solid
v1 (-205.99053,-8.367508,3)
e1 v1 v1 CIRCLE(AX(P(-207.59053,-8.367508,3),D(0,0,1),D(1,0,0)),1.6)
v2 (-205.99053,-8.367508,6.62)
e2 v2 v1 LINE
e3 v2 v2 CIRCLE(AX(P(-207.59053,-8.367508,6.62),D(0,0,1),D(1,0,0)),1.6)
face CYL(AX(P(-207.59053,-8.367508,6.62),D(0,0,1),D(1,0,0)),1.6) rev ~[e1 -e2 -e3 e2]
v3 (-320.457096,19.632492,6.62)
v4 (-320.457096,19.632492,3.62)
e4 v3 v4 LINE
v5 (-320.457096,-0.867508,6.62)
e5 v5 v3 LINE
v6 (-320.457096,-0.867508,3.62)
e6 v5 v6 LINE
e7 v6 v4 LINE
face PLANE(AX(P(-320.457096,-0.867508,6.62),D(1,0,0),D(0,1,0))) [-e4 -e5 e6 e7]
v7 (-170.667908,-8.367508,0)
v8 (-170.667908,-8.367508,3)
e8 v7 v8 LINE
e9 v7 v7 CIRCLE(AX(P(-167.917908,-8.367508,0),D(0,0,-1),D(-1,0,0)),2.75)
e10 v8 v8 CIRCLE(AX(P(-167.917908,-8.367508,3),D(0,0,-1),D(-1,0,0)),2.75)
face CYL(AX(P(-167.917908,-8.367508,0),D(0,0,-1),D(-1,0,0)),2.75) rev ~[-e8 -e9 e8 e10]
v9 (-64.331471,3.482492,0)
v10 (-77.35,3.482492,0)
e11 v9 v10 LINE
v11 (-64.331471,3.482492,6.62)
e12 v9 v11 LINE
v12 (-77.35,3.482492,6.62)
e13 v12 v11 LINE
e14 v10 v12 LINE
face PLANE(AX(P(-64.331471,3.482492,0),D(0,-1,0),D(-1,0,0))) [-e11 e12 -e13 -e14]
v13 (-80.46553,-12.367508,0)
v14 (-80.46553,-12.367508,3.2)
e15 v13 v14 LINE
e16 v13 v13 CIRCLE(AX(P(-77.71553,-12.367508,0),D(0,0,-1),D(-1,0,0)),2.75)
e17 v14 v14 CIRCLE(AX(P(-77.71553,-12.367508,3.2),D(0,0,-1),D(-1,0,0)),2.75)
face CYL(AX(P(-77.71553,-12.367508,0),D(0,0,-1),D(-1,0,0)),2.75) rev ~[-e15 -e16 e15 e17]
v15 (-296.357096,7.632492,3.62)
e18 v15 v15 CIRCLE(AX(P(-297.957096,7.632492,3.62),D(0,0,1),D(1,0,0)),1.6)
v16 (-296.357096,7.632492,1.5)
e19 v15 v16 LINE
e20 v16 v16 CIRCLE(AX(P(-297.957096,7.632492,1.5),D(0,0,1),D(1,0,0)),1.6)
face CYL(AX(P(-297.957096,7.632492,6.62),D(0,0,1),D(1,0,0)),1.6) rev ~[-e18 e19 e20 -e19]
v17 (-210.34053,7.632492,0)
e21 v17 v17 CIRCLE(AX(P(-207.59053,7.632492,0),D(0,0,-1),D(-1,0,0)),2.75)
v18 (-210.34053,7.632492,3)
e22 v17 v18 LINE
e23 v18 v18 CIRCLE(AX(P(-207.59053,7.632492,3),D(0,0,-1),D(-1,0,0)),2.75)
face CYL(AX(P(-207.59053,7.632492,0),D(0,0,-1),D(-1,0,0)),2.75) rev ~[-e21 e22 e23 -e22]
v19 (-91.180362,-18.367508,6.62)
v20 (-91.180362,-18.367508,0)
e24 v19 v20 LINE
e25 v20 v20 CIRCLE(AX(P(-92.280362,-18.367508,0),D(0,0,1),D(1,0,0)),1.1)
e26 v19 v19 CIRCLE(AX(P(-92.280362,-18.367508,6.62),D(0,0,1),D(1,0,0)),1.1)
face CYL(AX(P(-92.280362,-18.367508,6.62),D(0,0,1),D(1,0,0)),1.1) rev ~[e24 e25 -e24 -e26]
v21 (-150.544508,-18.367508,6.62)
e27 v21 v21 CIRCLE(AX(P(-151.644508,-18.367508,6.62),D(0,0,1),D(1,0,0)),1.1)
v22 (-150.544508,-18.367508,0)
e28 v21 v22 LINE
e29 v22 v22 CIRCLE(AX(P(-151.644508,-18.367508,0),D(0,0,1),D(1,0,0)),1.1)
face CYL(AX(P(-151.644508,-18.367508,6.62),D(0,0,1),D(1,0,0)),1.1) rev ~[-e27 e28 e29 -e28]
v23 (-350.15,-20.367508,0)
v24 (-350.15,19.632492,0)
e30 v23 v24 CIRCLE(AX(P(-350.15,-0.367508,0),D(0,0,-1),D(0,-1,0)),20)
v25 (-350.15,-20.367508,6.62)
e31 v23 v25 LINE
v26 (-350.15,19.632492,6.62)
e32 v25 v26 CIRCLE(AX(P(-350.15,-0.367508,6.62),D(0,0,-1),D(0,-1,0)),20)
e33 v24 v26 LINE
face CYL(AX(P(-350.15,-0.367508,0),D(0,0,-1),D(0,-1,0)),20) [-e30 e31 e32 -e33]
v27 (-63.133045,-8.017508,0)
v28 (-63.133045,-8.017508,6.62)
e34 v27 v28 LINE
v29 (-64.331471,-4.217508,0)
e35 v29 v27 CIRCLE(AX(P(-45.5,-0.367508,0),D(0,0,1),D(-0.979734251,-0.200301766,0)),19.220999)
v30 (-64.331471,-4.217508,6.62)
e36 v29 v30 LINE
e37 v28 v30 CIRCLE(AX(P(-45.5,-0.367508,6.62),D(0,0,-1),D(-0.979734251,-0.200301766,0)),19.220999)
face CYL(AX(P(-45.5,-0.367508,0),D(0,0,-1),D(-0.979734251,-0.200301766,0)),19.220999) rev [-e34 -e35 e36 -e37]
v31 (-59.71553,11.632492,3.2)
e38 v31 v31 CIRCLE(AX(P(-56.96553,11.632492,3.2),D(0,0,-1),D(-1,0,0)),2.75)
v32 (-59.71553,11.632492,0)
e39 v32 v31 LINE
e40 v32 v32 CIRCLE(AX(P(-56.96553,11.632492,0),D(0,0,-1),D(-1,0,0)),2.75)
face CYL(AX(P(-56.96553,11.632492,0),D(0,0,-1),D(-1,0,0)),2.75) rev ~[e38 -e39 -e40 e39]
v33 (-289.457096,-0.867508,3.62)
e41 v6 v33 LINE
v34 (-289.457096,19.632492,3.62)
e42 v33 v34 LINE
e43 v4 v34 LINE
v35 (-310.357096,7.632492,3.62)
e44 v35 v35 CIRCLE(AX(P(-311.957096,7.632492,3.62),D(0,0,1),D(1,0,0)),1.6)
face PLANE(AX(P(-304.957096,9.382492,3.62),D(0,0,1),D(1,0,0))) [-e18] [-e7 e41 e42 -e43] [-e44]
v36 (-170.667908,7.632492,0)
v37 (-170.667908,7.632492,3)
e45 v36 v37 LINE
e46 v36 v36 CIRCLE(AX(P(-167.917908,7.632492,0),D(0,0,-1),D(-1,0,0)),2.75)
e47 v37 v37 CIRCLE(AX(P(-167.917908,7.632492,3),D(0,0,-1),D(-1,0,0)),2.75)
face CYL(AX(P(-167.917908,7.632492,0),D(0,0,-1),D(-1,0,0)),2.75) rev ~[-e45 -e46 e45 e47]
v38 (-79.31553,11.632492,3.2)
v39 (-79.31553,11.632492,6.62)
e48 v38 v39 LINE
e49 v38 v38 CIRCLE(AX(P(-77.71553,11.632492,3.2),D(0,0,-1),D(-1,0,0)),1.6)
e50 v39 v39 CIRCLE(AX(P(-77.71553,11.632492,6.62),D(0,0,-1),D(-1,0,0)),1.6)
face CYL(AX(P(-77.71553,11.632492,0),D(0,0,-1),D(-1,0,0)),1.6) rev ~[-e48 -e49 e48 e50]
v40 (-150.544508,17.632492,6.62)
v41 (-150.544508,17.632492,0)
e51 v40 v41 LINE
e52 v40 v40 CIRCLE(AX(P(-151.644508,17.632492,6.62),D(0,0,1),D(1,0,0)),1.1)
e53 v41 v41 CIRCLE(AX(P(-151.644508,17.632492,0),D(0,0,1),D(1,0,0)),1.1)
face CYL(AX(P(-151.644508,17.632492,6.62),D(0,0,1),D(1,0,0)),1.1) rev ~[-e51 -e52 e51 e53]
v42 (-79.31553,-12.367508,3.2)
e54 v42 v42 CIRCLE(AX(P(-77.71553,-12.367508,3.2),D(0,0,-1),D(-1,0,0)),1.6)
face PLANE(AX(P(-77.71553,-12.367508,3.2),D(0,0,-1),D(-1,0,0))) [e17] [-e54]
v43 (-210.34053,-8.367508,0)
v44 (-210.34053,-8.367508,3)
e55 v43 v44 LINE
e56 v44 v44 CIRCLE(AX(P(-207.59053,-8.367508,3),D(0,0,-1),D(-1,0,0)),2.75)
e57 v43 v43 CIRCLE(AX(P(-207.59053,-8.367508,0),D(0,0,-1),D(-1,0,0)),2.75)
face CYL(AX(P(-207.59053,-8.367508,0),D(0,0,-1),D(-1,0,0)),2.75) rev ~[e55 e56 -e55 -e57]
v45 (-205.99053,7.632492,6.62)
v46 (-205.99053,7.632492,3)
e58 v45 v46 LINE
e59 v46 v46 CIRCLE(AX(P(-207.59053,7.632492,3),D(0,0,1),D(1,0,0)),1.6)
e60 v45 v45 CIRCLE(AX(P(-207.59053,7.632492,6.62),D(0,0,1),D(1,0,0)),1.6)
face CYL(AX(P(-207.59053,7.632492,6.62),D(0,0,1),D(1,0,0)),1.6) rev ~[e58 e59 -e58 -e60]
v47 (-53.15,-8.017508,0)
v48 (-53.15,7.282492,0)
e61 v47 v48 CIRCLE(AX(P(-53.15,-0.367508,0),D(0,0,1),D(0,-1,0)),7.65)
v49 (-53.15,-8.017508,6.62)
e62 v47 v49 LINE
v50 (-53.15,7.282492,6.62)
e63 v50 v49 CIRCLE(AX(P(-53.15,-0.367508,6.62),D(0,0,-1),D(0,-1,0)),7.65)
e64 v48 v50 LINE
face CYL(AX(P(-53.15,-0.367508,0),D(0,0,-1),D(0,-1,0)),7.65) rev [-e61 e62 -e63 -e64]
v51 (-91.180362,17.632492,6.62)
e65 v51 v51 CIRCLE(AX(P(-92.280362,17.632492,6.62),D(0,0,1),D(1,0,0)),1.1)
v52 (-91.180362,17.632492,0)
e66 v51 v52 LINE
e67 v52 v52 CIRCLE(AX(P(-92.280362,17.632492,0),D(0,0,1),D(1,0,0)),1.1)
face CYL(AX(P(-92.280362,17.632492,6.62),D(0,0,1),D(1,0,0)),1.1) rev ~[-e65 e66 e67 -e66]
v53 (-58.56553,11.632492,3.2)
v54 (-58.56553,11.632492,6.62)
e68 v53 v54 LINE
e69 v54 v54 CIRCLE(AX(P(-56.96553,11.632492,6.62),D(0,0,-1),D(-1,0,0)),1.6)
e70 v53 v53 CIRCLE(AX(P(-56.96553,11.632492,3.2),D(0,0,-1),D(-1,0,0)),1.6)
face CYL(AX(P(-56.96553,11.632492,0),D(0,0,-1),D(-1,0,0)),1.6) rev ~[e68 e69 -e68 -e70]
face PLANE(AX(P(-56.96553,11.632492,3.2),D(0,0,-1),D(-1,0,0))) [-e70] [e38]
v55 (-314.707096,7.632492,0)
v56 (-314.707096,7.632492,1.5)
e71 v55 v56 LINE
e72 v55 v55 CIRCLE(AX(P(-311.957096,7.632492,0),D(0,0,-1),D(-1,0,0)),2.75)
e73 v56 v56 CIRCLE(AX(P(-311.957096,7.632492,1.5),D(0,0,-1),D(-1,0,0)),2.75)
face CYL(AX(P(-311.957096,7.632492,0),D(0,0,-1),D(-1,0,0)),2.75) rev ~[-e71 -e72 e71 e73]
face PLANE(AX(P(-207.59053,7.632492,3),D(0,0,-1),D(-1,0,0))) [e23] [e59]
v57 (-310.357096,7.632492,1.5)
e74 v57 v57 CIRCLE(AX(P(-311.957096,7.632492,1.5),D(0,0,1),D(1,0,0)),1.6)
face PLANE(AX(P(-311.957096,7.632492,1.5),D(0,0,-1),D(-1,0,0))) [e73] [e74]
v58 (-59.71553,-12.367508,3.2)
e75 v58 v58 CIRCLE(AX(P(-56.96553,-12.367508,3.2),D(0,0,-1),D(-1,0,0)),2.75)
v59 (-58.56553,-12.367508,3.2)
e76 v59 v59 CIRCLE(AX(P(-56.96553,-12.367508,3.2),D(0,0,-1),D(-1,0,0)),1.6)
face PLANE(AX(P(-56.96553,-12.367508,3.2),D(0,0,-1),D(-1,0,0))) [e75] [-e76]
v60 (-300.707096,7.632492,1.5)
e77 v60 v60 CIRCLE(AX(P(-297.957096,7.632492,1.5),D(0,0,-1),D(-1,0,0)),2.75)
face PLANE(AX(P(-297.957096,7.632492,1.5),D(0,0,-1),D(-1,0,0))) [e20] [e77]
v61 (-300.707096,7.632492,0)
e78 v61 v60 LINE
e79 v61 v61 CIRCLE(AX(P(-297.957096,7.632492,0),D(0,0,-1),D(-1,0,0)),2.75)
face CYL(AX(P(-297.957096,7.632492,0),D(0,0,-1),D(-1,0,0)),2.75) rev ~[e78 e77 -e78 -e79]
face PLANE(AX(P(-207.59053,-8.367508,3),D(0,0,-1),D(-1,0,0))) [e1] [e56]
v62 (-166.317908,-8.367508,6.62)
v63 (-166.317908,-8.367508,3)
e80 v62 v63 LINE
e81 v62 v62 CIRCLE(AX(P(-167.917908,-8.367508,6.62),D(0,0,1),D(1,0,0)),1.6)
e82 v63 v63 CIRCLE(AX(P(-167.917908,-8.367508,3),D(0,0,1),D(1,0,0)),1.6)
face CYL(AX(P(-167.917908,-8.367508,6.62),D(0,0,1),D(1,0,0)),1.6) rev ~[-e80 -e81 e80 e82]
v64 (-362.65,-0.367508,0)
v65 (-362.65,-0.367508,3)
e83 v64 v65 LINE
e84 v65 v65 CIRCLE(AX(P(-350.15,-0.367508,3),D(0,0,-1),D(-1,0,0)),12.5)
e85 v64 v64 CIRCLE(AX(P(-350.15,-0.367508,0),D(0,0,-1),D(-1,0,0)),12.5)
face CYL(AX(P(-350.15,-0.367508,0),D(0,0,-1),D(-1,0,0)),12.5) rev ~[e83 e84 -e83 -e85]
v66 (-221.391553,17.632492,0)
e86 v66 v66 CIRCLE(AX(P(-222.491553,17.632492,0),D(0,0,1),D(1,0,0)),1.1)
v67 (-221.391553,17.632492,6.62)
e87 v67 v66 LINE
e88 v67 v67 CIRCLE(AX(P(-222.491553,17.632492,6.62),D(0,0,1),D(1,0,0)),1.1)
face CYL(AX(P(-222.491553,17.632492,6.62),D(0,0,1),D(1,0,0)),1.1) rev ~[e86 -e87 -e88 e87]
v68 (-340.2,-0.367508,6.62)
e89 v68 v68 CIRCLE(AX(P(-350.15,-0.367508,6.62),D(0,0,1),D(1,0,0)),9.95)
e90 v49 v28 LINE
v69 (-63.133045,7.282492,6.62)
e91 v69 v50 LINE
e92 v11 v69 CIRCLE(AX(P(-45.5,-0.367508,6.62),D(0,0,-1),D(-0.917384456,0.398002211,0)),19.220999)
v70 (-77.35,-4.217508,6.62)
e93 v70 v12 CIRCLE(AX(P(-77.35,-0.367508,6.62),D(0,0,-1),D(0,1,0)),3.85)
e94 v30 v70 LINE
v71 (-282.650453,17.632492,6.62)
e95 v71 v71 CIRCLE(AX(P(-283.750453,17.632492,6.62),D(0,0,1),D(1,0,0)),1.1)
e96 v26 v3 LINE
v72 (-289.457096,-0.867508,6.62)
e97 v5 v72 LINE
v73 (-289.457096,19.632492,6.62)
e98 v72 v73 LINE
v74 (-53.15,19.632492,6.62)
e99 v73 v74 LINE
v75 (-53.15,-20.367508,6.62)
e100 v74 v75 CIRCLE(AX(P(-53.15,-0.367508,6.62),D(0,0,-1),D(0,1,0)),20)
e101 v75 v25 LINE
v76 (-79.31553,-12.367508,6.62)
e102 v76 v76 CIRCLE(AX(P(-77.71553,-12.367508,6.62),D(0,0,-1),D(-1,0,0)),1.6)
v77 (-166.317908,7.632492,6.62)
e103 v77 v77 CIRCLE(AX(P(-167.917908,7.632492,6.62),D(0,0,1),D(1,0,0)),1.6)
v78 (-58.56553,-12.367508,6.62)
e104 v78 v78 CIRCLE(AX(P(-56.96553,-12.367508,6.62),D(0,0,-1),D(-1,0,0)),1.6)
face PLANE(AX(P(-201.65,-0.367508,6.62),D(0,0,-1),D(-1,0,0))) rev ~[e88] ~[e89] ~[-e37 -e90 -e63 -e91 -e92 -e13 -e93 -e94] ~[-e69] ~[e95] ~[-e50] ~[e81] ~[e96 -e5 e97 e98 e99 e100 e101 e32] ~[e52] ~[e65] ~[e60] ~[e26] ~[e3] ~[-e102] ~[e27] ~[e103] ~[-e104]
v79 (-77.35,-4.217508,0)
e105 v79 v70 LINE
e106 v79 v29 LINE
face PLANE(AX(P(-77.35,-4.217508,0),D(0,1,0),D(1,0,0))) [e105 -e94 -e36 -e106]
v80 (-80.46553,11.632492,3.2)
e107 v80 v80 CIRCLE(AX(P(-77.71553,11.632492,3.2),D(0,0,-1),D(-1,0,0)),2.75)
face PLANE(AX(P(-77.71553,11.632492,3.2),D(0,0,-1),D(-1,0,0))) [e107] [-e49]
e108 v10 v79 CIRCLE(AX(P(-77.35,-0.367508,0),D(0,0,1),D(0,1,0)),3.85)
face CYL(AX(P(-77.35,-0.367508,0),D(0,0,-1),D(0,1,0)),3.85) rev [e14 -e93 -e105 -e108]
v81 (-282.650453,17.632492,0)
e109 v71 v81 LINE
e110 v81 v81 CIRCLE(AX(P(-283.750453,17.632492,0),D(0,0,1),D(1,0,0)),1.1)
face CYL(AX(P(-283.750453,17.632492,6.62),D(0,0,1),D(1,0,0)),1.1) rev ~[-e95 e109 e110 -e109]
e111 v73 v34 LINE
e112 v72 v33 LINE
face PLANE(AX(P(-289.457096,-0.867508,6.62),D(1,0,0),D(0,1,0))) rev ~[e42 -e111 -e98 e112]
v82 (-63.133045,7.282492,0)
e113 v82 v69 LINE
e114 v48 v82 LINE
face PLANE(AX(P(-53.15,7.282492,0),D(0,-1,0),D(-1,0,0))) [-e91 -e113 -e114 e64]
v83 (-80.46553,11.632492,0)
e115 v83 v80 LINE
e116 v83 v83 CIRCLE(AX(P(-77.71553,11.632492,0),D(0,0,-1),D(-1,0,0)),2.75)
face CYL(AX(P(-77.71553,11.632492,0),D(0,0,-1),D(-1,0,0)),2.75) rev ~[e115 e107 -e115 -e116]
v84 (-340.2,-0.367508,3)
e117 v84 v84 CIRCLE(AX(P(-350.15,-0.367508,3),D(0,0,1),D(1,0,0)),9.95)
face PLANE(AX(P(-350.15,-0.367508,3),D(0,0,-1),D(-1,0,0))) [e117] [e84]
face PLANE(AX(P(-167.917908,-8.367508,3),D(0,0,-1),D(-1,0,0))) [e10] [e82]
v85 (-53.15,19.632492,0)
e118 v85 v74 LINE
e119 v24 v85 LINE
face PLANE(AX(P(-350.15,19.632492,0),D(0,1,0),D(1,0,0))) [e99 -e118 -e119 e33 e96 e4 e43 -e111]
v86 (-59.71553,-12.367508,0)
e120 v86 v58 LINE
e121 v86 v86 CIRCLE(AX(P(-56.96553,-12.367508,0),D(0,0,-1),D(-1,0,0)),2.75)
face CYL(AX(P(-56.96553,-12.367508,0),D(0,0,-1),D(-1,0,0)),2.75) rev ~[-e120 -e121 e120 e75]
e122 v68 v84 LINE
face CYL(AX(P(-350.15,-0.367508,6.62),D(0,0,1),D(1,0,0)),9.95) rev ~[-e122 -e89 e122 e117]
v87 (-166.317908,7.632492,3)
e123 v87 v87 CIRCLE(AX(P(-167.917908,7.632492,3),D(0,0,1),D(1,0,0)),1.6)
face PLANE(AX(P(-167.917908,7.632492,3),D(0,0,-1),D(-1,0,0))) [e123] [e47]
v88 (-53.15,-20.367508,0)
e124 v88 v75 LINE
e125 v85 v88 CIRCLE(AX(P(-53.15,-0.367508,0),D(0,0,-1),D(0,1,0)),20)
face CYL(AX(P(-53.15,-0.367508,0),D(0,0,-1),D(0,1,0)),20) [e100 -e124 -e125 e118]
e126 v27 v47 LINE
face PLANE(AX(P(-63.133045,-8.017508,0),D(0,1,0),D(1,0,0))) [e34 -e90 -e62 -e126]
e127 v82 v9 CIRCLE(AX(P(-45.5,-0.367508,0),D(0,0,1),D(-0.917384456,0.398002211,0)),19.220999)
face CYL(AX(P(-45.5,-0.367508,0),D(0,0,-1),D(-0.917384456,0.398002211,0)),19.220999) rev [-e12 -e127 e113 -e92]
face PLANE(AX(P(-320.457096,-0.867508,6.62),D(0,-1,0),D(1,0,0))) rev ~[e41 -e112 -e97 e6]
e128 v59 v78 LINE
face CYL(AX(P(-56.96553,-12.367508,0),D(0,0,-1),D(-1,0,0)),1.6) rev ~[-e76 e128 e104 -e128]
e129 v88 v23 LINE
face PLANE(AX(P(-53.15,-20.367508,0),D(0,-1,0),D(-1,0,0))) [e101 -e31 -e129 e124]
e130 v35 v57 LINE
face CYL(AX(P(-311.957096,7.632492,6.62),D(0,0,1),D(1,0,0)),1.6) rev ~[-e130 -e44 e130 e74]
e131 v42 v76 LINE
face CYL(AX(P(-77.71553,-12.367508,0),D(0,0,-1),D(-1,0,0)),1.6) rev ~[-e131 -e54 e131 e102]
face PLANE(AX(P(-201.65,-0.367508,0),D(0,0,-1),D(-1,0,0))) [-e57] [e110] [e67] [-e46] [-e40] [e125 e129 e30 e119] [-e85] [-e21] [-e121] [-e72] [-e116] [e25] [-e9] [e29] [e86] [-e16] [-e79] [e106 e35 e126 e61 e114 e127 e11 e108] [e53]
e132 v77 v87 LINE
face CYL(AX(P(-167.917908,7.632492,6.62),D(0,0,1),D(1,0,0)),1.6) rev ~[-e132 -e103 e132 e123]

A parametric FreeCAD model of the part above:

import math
import FreeCAD as App
import Part
import Sketcher

V = App.Vector
Q = App.Units.Quantity


def add_polygon(sketch, points):
    """Adds a closed chain of lines whose ends are joined by coincident constraints."""
    first, n = sketch.GeometryCount, len(points)
    for a, b in zip(points, points[1:] + points[:1]):
        sketch.addGeometry(Part.LineSegment(App.Vector(*a, 0), App.Vector(*b, 0)), False)
    for i in range(n):
        sketch.addConstraint(Sketcher.Constraint("Coincident", first + i, 2, first + (i + 1) % n, 1))

doc = App.newDocument("Part")
body = doc.addObject("PartDesign::Body", "Body")

# Sketch on XY plane
sketch1 = body.newObject("Sketcher::SketchObject", "Sketch")
sketch1.AttachmentSupport = (doc.getObject("XY_Plane"), [""])
sketch1.MapMode = "FlatFace"
sketch1.addGeometry([
    Part.LineSegment(V(-350.15, -20.367508, 0), V(-53.15, -20.367508, 0)),
    Part.ArcOfCircle(Part.Circle(V(-53.15, -0.367508, 0), V(0, 0, 1), 20), math.radians(-90), math.radians(90)),
    Part.LineSegment(V(-53.15, 19.632492, 0), V(-350.15, 19.632492, 0)),
    Part.ArcOfCircle(Part.Circle(V(-350.15, -0.367508, 0), V(0, 0, 1), 20), math.radians(90), math.radians(270)),
], False)
sketch1.addConstraint([
    Sketcher.Constraint("Tangent", 0, 2, 1, 1),
    Sketcher.Constraint("Tangent", 1, 2, 2, 1),
    Sketcher.Constraint("Tangent", 2, 2, 3, 1),
    Sketcher.Constraint("Tangent", 3, 2, 0, 1),
    Sketcher.Constraint("Horizontal", 0),
    Sketcher.Constraint("Horizontal", 2),
    Sketcher.Constraint("Radius", 1, Q("20 mm")),
    Sketcher.Constraint("DistanceX", 0, 1, 0, 2, Q("297 mm")),
    Sketcher.Constraint("DistanceX", 1, 3, -1, 1, Q("53.15 mm")),
    Sketcher.Constraint("DistanceY", 1, 3, -1, 1, Q("0.367508 mm")),
])
pad1 = body.newObject("PartDesign::Pad", "Pad")
pad1.Profile = sketch1
pad1.Length = 6.62

# Sketch on XY plane
sketch2 = body.newObject("Sketcher::SketchObject", "Sketch001")
sketch2.AttachmentSupport = (doc.getObject("XY_Plane"), [""])
sketch2.MapMode = "FlatFace"
sketch2.addGeometry([
    Part.LineSegment(V(-63.133045, 7.282492, 0), V(-53.15, 7.282492, 0)),  # 0
    Part.ArcOfCircle(Part.Circle(V(-53.15, -0.367508, 0), V(0, 0, 1), 7.65), math.radians(-90), math.radians(90)),  # 1
    Part.LineSegment(V(-53.15, -8.017508, 0), V(-63.133045, -8.017508, 0)),  # 2
    Part.ArcOfCircle(Part.Circle(V(-45.5, -0.367508, 0), V(0, 0, 1), 19.220999), math.radians(-168.445394), math.radians(-156.546654)),  # 3
    Part.LineSegment(V(-64.331471, -4.217508, 0), V(-77.35, -4.217508, 0)),  # 4
    Part.ArcOfCircle(Part.Circle(V(-77.35, -0.367508, 0), V(0, 0, 1), 3.85), math.radians(90), math.radians(270)),  # 5
    Part.LineSegment(V(-77.35, 3.482492, 0), V(-64.331471, 3.482492, 0)),  # 6
    Part.ArcOfCircle(Part.Circle(V(-45.5, -0.367508, 0), V(0, 0, 1), 19.220999), math.radians(156.546654), math.radians(168.445394)),  # 7
], False)
sketch2.addConstraint([
    Sketcher.Constraint("Tangent", 0, 2, 1, 2),
    Sketcher.Constraint("Tangent", 1, 1, 2, 1),
    Sketcher.Constraint("Coincident", 2, 2, 3, 2),
    Sketcher.Constraint("Coincident", 3, 1, 4, 1),
    Sketcher.Constraint("Tangent", 4, 2, 5, 2),
    Sketcher.Constraint("Tangent", 5, 1, 6, 1),
    Sketcher.Constraint("Coincident", 6, 2, 7, 2),
    Sketcher.Constraint("Coincident", 7, 1, 0, 1),
    Sketcher.Constraint("Horizontal", 0),
    Sketcher.Constraint("Horizontal", 2),
    Sketcher.Constraint("Horizontal", 4),
    Sketcher.Constraint("Horizontal", 6),
    Sketcher.Constraint("Coincident", 7, 3, 3, 3),
    Sketcher.Constraint("Equal", 3, 7),
    Sketcher.Constraint("Horizontal", 1, 3, 3, 3),
    Sketcher.Constraint("Horizontal", 3, 3, 5, 3),
    Sketcher.Constraint("Radius", 1, Q("7.65 mm")),
    Sketcher.Constraint("Radius", 5, Q("3.85 mm")),
    Sketcher.Constraint("Radius", 3, Q("19.220999 mm")),
    Sketcher.Constraint("DistanceX", 3, 3, -1, 1, Q("45.5 mm")),
    Sketcher.Constraint("DistanceX", 5, 3, 1, 3, Q("24.2 mm")),
    Sketcher.Constraint("DistanceX", 1, 3, -1, 1, Q("53.15 mm")),
    Sketcher.Constraint("DistanceY", 1, 3, -1, 1, Q("0.367508 mm")),
])
pocket1 = body.newObject("PartDesign::Pocket", "Pocket")
pocket1.Profile = sketch2
pocket1.Type = "UpToFirst"
pocket1.Reversed = True

# Sketch on XY plane
sketch3 = body.newObject("Sketcher::SketchObject", "Sketch002")
sketch3.AttachmentSupport = (doc.getObject("XY_Plane"), [""])
sketch3.MapMode = "FlatFace"
sketch3.addGeometry(Part.Circle(V(-77.71553, -12.367508, 0), V(0, 0, 1), 1.6), False)
sketch3.addConstraint([
    Sketcher.Constraint("Diameter", 0, Q("3.2 mm")),
    Sketcher.Constraint("DistanceX", 0, 3, -1, 1, Q("77.71553 mm")),
    Sketcher.Constraint("DistanceY", 0, 3, -1, 1, Q("12.367508 mm")),
])
pocket2 = body.newObject("PartDesign::Pocket", "Pocket001")
pocket2.Profile = sketch3
pocket2.Type = "UpToFirst"
pocket2.Reversed = True

# Sketch on XY plane
sketch4 = body.newObject("Sketcher::SketchObject", "Sketch003")
sketch4.AttachmentSupport = (doc.getObject("XY_Plane"), [""])
sketch4.MapMode = "FlatFace"
sketch4.addGeometry(Part.Circle(V(-77.71553, 11.632492, 0), V(0, 0, 1), 1.6), False)
sketch4.addConstraint([
    Sketcher.Constraint("Diameter", 0, Q("3.2 mm")),
    Sketcher.Constraint("DistanceX", 0, 3, -1, 1, Q("77.71553 mm")),
    Sketcher.Constraint("DistanceY", -1, 1, 0, 3, Q("11.632492 mm")),
])
pocket3 = body.newObject("PartDesign::Pocket", "Pocket002")
pocket3.Profile = sketch4
pocket3.Type = "UpToFirst"
pocket3.Reversed = True

# Sketch on XY plane
sketch5 = body.newObject("Sketcher::SketchObject", "Sketch004")
sketch5.AttachmentSupport = (doc.getObject("XY_Plane"), [""])
sketch5.MapMode = "FlatFace"
sketch5.addGeometry(Part.Circle(V(-56.96553, 11.632492, 0), V(0, 0, 1), 1.6), False)
sketch5.addConstraint([
    Sketcher.Constraint("Diameter", 0, Q("3.2 mm")),
    Sketcher.Constraint("DistanceX", 0, 3, -1, 1, Q("56.96553 mm")),
    Sketcher.Constraint("DistanceY", -1, 1, 0, 3, Q("11.632492 mm")),
])
pocket4 = body.newObject("PartDesign::Pocket", "Pocket003")
pocket4.Profile = sketch5
pocket4.Type = "UpToFirst"
pocket4.Reversed = True

# Sketch on XY plane
sketch6 = body.newObject("Sketcher::SketchObject", "Sketch005")
sketch6.AttachmentSupport = (doc.getObject("XY_Plane"), [""])
sketch6.MapMode = "FlatFace"
sketch6.addGeometry(Part.Circle(V(-56.96553, -12.367508, 0), V(0, 0, 1), 1.6), False)
sketch6.addConstraint([
    Sketcher.Constraint("Diameter", 0, Q("3.2 mm")),
    Sketcher.Constraint("DistanceX", 0, 3, -1, 1, Q("56.96553 mm")),
    Sketcher.Constraint("DistanceY", 0, 3, -1, 1, Q("12.367508 mm")),
])
pocket5 = body.newObject("PartDesign::Pocket", "Pocket004")
pocket5.Profile = sketch6
pocket5.Type = "UpToFirst"
pocket5.Reversed = True

# Sketch on XY plane
sketch7 = body.newObject("Sketcher::SketchObject", "Sketch006")
sketch7.AttachmentSupport = (doc.getObject("XY_Plane"), [""])
sketch7.MapMode = "FlatFace"
sketch7.addGeometry([
    Part.Circle(V(-56.96553, 11.632492, 0), V(0, 0, 1), 2.75),
    Part.Circle(V(-77.71553, 11.632492, 0), V(0, 0, 1), 2.75),
    Part.Circle(V(-77.71553, -12.367508, 0), V(0, 0, 1), 2.75),
    Part.Circle(V(-56.96553, -12.367508, 0), V(0, 0, 1), 2.75),
], False)
sketch7.addConstraint([
    Sketcher.Constraint("Equal", 0, 1),
    Sketcher.Constraint("Equal", 1, 2),
    Sketcher.Constraint("Equal", 2, 3),
    Sketcher.Constraint("Horizontal", 0, 3, 1, 3),
    Sketcher.Constraint("Horizontal", 2, 3, 3, 3),
    Sketcher.Constraint("Vertical", 1, 3, 2, 3),
    Sketcher.Constraint("Vertical", 0, 3, 3, 3),
    Sketcher.Constraint("Diameter", 0, Q("5.5 mm")),
    Sketcher.Constraint("DistanceY", 2, 3, 1, 3, Q("24 mm")),
    Sketcher.Constraint("DistanceX", 1, 3, 0, 3, Q("20.75 mm")),
    Sketcher.Constraint("DistanceX", 0, 3, -1, 1, Q("56.96553 mm")),
    Sketcher.Constraint("DistanceY", -1, 1, 0, 3, Q("11.632492 mm")),
])
pocket6 = body.newObject("PartDesign::Pocket", "Pocket005")
pocket6.Profile = sketch7
pocket6.Length = 3.2
pocket6.Reversed = True

# Sketch on XY plane
sketch8 = body.newObject("Sketcher::SketchObject", "Sketch007")
sketch8.AttachmentSupport = (doc.getObject("XY_Plane"), [""])
sketch8.MapMode = "FlatFace"
sketch8.AttachmentOffset = App.Placement(V(0, 0, 6.62), App.Rotation())
sketch8.addGeometry(Part.Circle(V(-350.15, -0.367508, 0), V(0, 0, 1), 9.95), False)
sketch8.addConstraint([
    Sketcher.Constraint("Diameter", 0, Q("19.9 mm")),
    Sketcher.Constraint("DistanceX", 0, 3, -1, 1, Q("350.15 mm")),
    Sketcher.Constraint("DistanceY", 0, 3, -1, 1, Q("0.367508 mm")),
])
pocket7 = body.newObject("PartDesign::Pocket", "Pocket006")
pocket7.Profile = sketch8
pocket7.Length = 10

# Sketch on XY plane
sketch9 = body.newObject("Sketcher::SketchObject", "Sketch008")
sketch9.AttachmentSupport = (doc.getObject("XY_Plane"), [""])
sketch9.MapMode = "FlatFace"
sketch9.addGeometry(Part.Circle(V(-350.15, -0.367508, 0), V(0, 0, 1), 12.5), False)
sketch9.addConstraint([
    Sketcher.Constraint("Diameter", 0, Q("25 mm")),
    Sketcher.Constraint("DistanceX", 0, 3, -1, 1, Q("350.15 mm")),
    Sketcher.Constraint("DistanceY", 0, 3, -1, 1, Q("0.367508 mm")),
])
pocket8 = body.newObject("PartDesign::Pocket", "Pocket007")
pocket8.Profile = sketch9
pocket8.Length = 3
pocket8.Reversed = True

# Sketch on XY plane
sketch10 = body.newObject("Sketcher::SketchObject", "Sketch009")
sketch10.AttachmentSupport = (doc.getObject("XY_Plane"), [""])
sketch10.MapMode = "FlatFace"
sketch10.AttachmentOffset = App.Placement(V(0, 0, 6.62), App.Rotation())
sketch10.addGeometry(Part.Circle(V(-207.59053, -8.367508, 0), V(0, 0, 1), 1.6), False)
sketch10.addConstraint([
    Sketcher.Constraint("Diameter", 0, Q("3.2 mm")),
    Sketcher.Constraint("DistanceX", 0, 3, -1, 1, Q("207.59053 mm")),
    Sketcher.Constraint("DistanceY", 0, 3, -1, 1, Q("8.367508 mm")),
])
pocket9 = body.newObject("PartDesign::Pocket", "Pocket008")
pocket9.Profile = sketch10
pocket9.Type = "UpToFirst"

# Sketch on XY plane
sketch11 = body.newObject("Sketcher::SketchObject", "Sketch010")
sketch11.AttachmentSupport = (doc.getObject("XY_Plane"), [""])
sketch11.MapMode = "FlatFace"
sketch11.AttachmentOffset = App.Placement(V(0, 0, 6.62), App.Rotation())
sketch11.addGeometry(Part.Circle(V(-207.59053, 7.632492, 0), V(0, 0, 1), 1.6), False)
sketch11.addConstraint([
    Sketcher.Constraint("Diameter", 0, Q("3.2 mm")),
    Sketcher.Constraint("DistanceX", 0, 3, -1, 1, Q("207.59053 mm")),
    Sketcher.Constraint("DistanceY", -1, 1, 0, 3, Q("7.632492 mm")),
])
pocket10 = body.newObject("PartDesign::Pocket", "Pocket009")
pocket10.Profile = sketch11
pocket10.Type = "UpToFirst"

# Sketch on XY plane
sketch12 = body.newObject("Sketcher::SketchObject", "Sketch011")
sketch12.AttachmentSupport = (doc.getObject("XY_Plane"), [""])
sketch12.MapMode = "FlatFace"
sketch12.AttachmentOffset = App.Placement(V(0, 0, 6.62), App.Rotation())
sketch12.addGeometry(Part.Circle(V(-167.917908, -8.367508, 0), V(0, 0, 1), 1.6), False)
sketch12.addConstraint([
    Sketcher.Constraint("Diameter", 0, Q("3.2 mm")),
    Sketcher.Constraint("DistanceX", 0, 3, -1, 1, Q("167.917908 mm")),
    Sketcher.Constraint("DistanceY", 0, 3, -1, 1, Q("8.367508 mm")),
])
pocket11 = body.newObject("PartDesign::Pocket", "Pocket010")
pocket11.Profile = sketch12
pocket11.Type = "UpToFirst"

# Sketch on XY plane
sketch13 = body.newObject("Sketcher::SketchObject", "Sketch012")
sketch13.AttachmentSupport = (doc.getObject("XY_Plane"), [""])
sketch13.MapMode = "FlatFace"
sketch13.AttachmentOffset = App.Placement(V(0, 0, 6.62), App.Rotation())
sketch13.addGeometry(Part.Circle(V(-167.917908, 7.632492, 0), V(0, 0, 1), 1.6), False)
sketch13.addConstraint([
    Sketcher.Constraint("Diameter", 0, Q("3.2 mm")),
    Sketcher.Constraint("DistanceX", 0, 3, -1, 1, Q("167.917908 mm")),
    Sketcher.Constraint("DistanceY", -1, 1, 0, 3, Q("7.632492 mm")),
])
pocket12 = body.newObject("PartDesign::Pocket", "Pocket011")
pocket12.Profile = sketch13
pocket12.Type = "UpToFirst"

# Sketch on XY plane
sketch14 = body.newObject("Sketcher::SketchObject", "Sketch013")
sketch14.AttachmentSupport = (doc.getObject("XY_Plane"), [""])
sketch14.MapMode = "FlatFace"
sketch14.addGeometry([
    Part.Circle(V(-207.59053, 7.632492, 0), V(0, 0, 1), 2.75),
    Part.Circle(V(-207.59053, -8.367508, 0), V(0, 0, 1), 2.75),
    Part.Circle(V(-167.917908, 7.632492, 0), V(0, 0, 1), 2.75),
    Part.Circle(V(-167.917908, -8.367508, 0), V(0, 0, 1), 2.75),
], False)
sketch14.addConstraint([
    Sketcher.Constraint("Equal", 0, 1),
    Sketcher.Constraint("Equal", 1, 2),
    Sketcher.Constraint("Equal", 2, 3),
    Sketcher.Constraint("Horizontal", 0, 3, 2, 3),
    Sketcher.Constraint("Horizontal", 1, 3, 3, 3),
    Sketcher.Constraint("Vertical", 0, 3, 1, 3),
    Sketcher.Constraint("Vertical", 2, 3, 3, 3),
    Sketcher.Constraint("Diameter", 0, Q("5.5 mm")),
    Sketcher.Constraint("DistanceY", 1, 3, 0, 3, Q("16 mm")),
    Sketcher.Constraint("DistanceX", 0, 3, -1, 1, Q("207.59053 mm")),
    Sketcher.Constraint("DistanceX", 2, 3, -1, 1, Q("167.917908 mm")),
    Sketcher.Constraint("DistanceY", -1, 1, 0, 3, Q("7.632492 mm")),
])
pocket13 = body.newObject("PartDesign::Pocket", "Pocket012")
pocket13.Profile = sketch14
pocket13.Length = 3
pocket13.Reversed = True

# Sketch on XY plane
sketch15 = body.newObject("Sketcher::SketchObject", "Sketch014")
sketch15.AttachmentSupport = (doc.getObject("XY_Plane"), [""])
sketch15.MapMode = "FlatFace"
sketch15.AttachmentOffset = App.Placement(V(0, 0, 6.62), App.Rotation())
add_polygon(sketch15, [(-320.457096, 19.632492), (-320.457096, -0.867508), (-289.457096, -0.867508), (-289.457096, 19.632492)])  # lines 0-3
sketch15.addConstraint([
    Sketcher.Constraint("Vertical", 0),
    Sketcher.Constraint("Horizontal", 1),
    Sketcher.Constraint("Vertical", 2),
    Sketcher.Constraint("Horizontal", 3),
    Sketcher.Constraint("DistanceX", 1, 1, 1, 2, Q("31 mm")),
    Sketcher.Constraint("DistanceY", 0, 2, 0, 1, Q("20.5 mm")),
    Sketcher.Constraint("DistanceX", 0, 2, -1, 1, Q("320.457096 mm")),
    Sketcher.Constraint("DistanceY", 0, 2, -1, 1, Q("0.867508 mm")),
])
pocket14 = body.newObject("PartDesign::Pocket", "Pocket013")
pocket14.Profile = sketch15
pocket14.Length = 3

# Sketch on XY plane
sketch16 = body.newObject("Sketcher::SketchObject", "Sketch015")
sketch16.AttachmentSupport = (doc.getObject("XY_Plane"), [""])
sketch16.MapMode = "FlatFace"
sketch16.AttachmentOffset = App.Placement(V(0, 0, 6.62), App.Rotation())
sketch16.addGeometry(Part.Circle(V(-311.957096, 7.632492, 0), V(0, 0, 1), 1.6), False)
sketch16.addConstraint([
    Sketcher.Constraint("Diameter", 0, Q("3.2 mm")),
    Sketcher.Constraint("DistanceX", 0, 3, -1, 1, Q("311.957096 mm")),
    Sketcher.Constraint("DistanceY", -1, 1, 0, 3, Q("7.632492 mm")),
])
pocket15 = body.newObject("PartDesign::Pocket", "Pocket014")
pocket15.Profile = sketch16
pocket15.Length = 6.62

# Sketch on XY plane
sketch17 = body.newObject("Sketcher::SketchObject", "Sketch016")
sketch17.AttachmentSupport = (doc.getObject("XY_Plane"), [""])
sketch17.MapMode = "FlatFace"
sketch17.AttachmentOffset = App.Placement(V(0, 0, 6.62), App.Rotation())
sketch17.addGeometry(Part.Circle(V(-297.957096, 7.632492, 0), V(0, 0, 1), 1.6), False)
sketch17.addConstraint([
    Sketcher.Constraint("Diameter", 0, Q("3.2 mm")),
    Sketcher.Constraint("DistanceX", 0, 3, -1, 1, Q("297.957096 mm")),
    Sketcher.Constraint("DistanceY", -1, 1, 0, 3, Q("7.632492 mm")),
])
pocket16 = body.newObject("PartDesign::Pocket", "Pocket015")
pocket16.Profile = sketch17
pocket16.Length = 6.62

# Sketch on XY plane
sketch18 = body.newObject("Sketcher::SketchObject", "Sketch017")
sketch18.AttachmentSupport = (doc.getObject("XY_Plane"), [""])
sketch18.MapMode = "FlatFace"
sketch18.addGeometry([
    Part.Circle(V(-311.957096, 7.632492, 0), V(0, 0, 1), 2.75),
    Part.Circle(V(-297.957096, 7.632492, 0), V(0, 0, 1), 2.75),
], False)
sketch18.addConstraint([
    Sketcher.Constraint("Equal", 0, 1),
    Sketcher.Constraint("Horizontal", 0, 3, 1, 3),
    Sketcher.Constraint("Diameter", 0, Q("5.5 mm")),
    Sketcher.Constraint("DistanceX", 0, 3, 1, 3, Q("14 mm")),
    Sketcher.Constraint("DistanceX", 0, 3, -1, 1, Q("311.957096 mm")),
    Sketcher.Constraint("DistanceY", -1, 1, 0, 3, Q("7.632492 mm")),
])
pocket17 = body.newObject("PartDesign::Pocket", "Pocket016")
pocket17.Profile = sketch18
pocket17.Length = 1.5
pocket17.Reversed = True

# Sketch on XY plane
sketch19 = body.newObject("Sketcher::SketchObject", "Sketch018")
sketch19.AttachmentSupport = (doc.getObject("XY_Plane"), [""])
sketch19.MapMode = "FlatFace"
sketch19.AttachmentOffset = App.Placement(V(0, 0, 6.62), App.Rotation())
sketch19.addGeometry(Part.Circle(V(-151.644508, -18.367508, 0), V(0, 0, 1), 1.1), False)
sketch19.addConstraint([
    Sketcher.Constraint("Diameter", 0, Q("2.2 mm")),
    Sketcher.Constraint("DistanceX", 0, 3, -1, 1, Q("151.644508 mm")),
    Sketcher.Constraint("DistanceY", 0, 3, -1, 1, Q("18.367508 mm")),
])
pocket18 = body.newObject("PartDesign::Pocket", "Pocket017")
pocket18.Profile = sketch19
pocket18.Type = "UpToFirst"

# Sketch on XY plane
sketch20 = body.newObject("Sketcher::SketchObject", "Sketch019")
sketch20.AttachmentSupport = (doc.getObject("XY_Plane"), [""])
sketch20.MapMode = "FlatFace"
sketch20.AttachmentOffset = App.Placement(V(0, 0, 6.62), App.Rotation())
sketch20.addGeometry(Part.Circle(V(-92.280362, -18.367508, 0), V(0, 0, 1), 1.1), False)
sketch20.addConstraint([
    Sketcher.Constraint("Diameter", 0, Q("2.2 mm")),
    Sketcher.Constraint("DistanceX", 0, 3, -1, 1, Q("92.280362 mm")),
    Sketcher.Constraint("DistanceY", 0, 3, -1, 1, Q("18.367508 mm")),
])
pocket19 = body.newObject("PartDesign::Pocket", "Pocket018")
pocket19.Profile = sketch20
pocket19.Type = "UpToFirst"

# Sketch on XY plane
sketch21 = body.newObject("Sketcher::SketchObject", "Sketch020")
sketch21.AttachmentSupport = (doc.getObject("XY_Plane"), [""])
sketch21.MapMode = "FlatFace"
sketch21.AttachmentOffset = App.Placement(V(0, 0, 6.62), App.Rotation())
sketch21.addGeometry(Part.Circle(V(-151.644508, 17.632492, 0), V(0, 0, 1), 1.1), False)
sketch21.addConstraint([
    Sketcher.Constraint("Diameter", 0, Q("2.2 mm")),
    Sketcher.Constraint("DistanceX", 0, 3, -1, 1, Q("151.644508 mm")),
    Sketcher.Constraint("DistanceY", -1, 1, 0, 3, Q("17.632492 mm")),
])
pocket20 = body.newObject("PartDesign::Pocket", "Pocket019")
pocket20.Profile = sketch21
pocket20.Type = "UpToFirst"

# Sketch on XY plane
sketch22 = body.newObject("Sketcher::SketchObject", "Sketch021")
sketch22.AttachmentSupport = (doc.getObject("XY_Plane"), [""])
sketch22.MapMode = "FlatFace"
sketch22.AttachmentOffset = App.Placement(V(0, 0, 6.62), App.Rotation())
sketch22.addGeometry(Part.Circle(V(-92.280362, 17.632492, 0), V(0, 0, 1), 1.1), False)
sketch22.addConstraint([
    Sketcher.Constraint("Diameter", 0, Q("2.2 mm")),
    Sketcher.Constraint("DistanceX", 0, 3, -1, 1, Q("92.280362 mm")),
    Sketcher.Constraint("DistanceY", -1, 1, 0, 3, Q("17.632492 mm")),
])
pocket21 = body.newObject("PartDesign::Pocket", "Pocket020")
pocket21.Profile = sketch22
pocket21.Type = "UpToFirst"

# Sketch on XY plane
sketch23 = body.newObject("Sketcher::SketchObject", "Sketch022")
sketch23.AttachmentSupport = (doc.getObject("XY_Plane"), [""])
sketch23.MapMode = "FlatFace"
sketch23.AttachmentOffset = App.Placement(V(0, 0, 6.62), App.Rotation())
sketch23.addGeometry(Part.Circle(V(-222.491553, 17.632492, 0), V(0, 0, 1), 1.1), False)
sketch23.addConstraint([
    Sketcher.Constraint("Diameter", 0, Q("2.2 mm")),
    Sketcher.Constraint("DistanceX", 0, 3, -1, 1, Q("222.491553 mm")),
    Sketcher.Constraint("DistanceY", -1, 1, 0, 3, Q("17.632492 mm")),
])
pocket22 = body.newObject("PartDesign::Pocket", "Pocket021")
pocket22.Profile = sketch23
pocket22.Type = "UpToFirst"

# Sketch on XY plane
sketch24 = body.newObject("Sketcher::SketchObject", "Sketch023")
sketch24.AttachmentSupport = (doc.getObject("XY_Plane"), [""])
sketch24.MapMode = "FlatFace"
sketch24.AttachmentOffset = App.Placement(V(0, 0, 6.62), App.Rotation())
sketch24.addGeometry(Part.Circle(V(-283.750453, 17.632492, 0), V(0, 0, 1), 1.1), False)
sketch24.addConstraint([
    Sketcher.Constraint("Diameter", 0, Q("2.2 mm")),
    Sketcher.Constraint("DistanceX", 0, 3, -1, 1, Q("283.750453 mm")),
    Sketcher.Constraint("DistanceY", -1, 1, 0, 3, Q("17.632492 mm")),
])
pocket23 = body.newObject("PartDesign::Pocket", "Pocket022")
pocket23.Profile = sketch24
pocket23.Type = "UpToFirst"

doc.recompute()
